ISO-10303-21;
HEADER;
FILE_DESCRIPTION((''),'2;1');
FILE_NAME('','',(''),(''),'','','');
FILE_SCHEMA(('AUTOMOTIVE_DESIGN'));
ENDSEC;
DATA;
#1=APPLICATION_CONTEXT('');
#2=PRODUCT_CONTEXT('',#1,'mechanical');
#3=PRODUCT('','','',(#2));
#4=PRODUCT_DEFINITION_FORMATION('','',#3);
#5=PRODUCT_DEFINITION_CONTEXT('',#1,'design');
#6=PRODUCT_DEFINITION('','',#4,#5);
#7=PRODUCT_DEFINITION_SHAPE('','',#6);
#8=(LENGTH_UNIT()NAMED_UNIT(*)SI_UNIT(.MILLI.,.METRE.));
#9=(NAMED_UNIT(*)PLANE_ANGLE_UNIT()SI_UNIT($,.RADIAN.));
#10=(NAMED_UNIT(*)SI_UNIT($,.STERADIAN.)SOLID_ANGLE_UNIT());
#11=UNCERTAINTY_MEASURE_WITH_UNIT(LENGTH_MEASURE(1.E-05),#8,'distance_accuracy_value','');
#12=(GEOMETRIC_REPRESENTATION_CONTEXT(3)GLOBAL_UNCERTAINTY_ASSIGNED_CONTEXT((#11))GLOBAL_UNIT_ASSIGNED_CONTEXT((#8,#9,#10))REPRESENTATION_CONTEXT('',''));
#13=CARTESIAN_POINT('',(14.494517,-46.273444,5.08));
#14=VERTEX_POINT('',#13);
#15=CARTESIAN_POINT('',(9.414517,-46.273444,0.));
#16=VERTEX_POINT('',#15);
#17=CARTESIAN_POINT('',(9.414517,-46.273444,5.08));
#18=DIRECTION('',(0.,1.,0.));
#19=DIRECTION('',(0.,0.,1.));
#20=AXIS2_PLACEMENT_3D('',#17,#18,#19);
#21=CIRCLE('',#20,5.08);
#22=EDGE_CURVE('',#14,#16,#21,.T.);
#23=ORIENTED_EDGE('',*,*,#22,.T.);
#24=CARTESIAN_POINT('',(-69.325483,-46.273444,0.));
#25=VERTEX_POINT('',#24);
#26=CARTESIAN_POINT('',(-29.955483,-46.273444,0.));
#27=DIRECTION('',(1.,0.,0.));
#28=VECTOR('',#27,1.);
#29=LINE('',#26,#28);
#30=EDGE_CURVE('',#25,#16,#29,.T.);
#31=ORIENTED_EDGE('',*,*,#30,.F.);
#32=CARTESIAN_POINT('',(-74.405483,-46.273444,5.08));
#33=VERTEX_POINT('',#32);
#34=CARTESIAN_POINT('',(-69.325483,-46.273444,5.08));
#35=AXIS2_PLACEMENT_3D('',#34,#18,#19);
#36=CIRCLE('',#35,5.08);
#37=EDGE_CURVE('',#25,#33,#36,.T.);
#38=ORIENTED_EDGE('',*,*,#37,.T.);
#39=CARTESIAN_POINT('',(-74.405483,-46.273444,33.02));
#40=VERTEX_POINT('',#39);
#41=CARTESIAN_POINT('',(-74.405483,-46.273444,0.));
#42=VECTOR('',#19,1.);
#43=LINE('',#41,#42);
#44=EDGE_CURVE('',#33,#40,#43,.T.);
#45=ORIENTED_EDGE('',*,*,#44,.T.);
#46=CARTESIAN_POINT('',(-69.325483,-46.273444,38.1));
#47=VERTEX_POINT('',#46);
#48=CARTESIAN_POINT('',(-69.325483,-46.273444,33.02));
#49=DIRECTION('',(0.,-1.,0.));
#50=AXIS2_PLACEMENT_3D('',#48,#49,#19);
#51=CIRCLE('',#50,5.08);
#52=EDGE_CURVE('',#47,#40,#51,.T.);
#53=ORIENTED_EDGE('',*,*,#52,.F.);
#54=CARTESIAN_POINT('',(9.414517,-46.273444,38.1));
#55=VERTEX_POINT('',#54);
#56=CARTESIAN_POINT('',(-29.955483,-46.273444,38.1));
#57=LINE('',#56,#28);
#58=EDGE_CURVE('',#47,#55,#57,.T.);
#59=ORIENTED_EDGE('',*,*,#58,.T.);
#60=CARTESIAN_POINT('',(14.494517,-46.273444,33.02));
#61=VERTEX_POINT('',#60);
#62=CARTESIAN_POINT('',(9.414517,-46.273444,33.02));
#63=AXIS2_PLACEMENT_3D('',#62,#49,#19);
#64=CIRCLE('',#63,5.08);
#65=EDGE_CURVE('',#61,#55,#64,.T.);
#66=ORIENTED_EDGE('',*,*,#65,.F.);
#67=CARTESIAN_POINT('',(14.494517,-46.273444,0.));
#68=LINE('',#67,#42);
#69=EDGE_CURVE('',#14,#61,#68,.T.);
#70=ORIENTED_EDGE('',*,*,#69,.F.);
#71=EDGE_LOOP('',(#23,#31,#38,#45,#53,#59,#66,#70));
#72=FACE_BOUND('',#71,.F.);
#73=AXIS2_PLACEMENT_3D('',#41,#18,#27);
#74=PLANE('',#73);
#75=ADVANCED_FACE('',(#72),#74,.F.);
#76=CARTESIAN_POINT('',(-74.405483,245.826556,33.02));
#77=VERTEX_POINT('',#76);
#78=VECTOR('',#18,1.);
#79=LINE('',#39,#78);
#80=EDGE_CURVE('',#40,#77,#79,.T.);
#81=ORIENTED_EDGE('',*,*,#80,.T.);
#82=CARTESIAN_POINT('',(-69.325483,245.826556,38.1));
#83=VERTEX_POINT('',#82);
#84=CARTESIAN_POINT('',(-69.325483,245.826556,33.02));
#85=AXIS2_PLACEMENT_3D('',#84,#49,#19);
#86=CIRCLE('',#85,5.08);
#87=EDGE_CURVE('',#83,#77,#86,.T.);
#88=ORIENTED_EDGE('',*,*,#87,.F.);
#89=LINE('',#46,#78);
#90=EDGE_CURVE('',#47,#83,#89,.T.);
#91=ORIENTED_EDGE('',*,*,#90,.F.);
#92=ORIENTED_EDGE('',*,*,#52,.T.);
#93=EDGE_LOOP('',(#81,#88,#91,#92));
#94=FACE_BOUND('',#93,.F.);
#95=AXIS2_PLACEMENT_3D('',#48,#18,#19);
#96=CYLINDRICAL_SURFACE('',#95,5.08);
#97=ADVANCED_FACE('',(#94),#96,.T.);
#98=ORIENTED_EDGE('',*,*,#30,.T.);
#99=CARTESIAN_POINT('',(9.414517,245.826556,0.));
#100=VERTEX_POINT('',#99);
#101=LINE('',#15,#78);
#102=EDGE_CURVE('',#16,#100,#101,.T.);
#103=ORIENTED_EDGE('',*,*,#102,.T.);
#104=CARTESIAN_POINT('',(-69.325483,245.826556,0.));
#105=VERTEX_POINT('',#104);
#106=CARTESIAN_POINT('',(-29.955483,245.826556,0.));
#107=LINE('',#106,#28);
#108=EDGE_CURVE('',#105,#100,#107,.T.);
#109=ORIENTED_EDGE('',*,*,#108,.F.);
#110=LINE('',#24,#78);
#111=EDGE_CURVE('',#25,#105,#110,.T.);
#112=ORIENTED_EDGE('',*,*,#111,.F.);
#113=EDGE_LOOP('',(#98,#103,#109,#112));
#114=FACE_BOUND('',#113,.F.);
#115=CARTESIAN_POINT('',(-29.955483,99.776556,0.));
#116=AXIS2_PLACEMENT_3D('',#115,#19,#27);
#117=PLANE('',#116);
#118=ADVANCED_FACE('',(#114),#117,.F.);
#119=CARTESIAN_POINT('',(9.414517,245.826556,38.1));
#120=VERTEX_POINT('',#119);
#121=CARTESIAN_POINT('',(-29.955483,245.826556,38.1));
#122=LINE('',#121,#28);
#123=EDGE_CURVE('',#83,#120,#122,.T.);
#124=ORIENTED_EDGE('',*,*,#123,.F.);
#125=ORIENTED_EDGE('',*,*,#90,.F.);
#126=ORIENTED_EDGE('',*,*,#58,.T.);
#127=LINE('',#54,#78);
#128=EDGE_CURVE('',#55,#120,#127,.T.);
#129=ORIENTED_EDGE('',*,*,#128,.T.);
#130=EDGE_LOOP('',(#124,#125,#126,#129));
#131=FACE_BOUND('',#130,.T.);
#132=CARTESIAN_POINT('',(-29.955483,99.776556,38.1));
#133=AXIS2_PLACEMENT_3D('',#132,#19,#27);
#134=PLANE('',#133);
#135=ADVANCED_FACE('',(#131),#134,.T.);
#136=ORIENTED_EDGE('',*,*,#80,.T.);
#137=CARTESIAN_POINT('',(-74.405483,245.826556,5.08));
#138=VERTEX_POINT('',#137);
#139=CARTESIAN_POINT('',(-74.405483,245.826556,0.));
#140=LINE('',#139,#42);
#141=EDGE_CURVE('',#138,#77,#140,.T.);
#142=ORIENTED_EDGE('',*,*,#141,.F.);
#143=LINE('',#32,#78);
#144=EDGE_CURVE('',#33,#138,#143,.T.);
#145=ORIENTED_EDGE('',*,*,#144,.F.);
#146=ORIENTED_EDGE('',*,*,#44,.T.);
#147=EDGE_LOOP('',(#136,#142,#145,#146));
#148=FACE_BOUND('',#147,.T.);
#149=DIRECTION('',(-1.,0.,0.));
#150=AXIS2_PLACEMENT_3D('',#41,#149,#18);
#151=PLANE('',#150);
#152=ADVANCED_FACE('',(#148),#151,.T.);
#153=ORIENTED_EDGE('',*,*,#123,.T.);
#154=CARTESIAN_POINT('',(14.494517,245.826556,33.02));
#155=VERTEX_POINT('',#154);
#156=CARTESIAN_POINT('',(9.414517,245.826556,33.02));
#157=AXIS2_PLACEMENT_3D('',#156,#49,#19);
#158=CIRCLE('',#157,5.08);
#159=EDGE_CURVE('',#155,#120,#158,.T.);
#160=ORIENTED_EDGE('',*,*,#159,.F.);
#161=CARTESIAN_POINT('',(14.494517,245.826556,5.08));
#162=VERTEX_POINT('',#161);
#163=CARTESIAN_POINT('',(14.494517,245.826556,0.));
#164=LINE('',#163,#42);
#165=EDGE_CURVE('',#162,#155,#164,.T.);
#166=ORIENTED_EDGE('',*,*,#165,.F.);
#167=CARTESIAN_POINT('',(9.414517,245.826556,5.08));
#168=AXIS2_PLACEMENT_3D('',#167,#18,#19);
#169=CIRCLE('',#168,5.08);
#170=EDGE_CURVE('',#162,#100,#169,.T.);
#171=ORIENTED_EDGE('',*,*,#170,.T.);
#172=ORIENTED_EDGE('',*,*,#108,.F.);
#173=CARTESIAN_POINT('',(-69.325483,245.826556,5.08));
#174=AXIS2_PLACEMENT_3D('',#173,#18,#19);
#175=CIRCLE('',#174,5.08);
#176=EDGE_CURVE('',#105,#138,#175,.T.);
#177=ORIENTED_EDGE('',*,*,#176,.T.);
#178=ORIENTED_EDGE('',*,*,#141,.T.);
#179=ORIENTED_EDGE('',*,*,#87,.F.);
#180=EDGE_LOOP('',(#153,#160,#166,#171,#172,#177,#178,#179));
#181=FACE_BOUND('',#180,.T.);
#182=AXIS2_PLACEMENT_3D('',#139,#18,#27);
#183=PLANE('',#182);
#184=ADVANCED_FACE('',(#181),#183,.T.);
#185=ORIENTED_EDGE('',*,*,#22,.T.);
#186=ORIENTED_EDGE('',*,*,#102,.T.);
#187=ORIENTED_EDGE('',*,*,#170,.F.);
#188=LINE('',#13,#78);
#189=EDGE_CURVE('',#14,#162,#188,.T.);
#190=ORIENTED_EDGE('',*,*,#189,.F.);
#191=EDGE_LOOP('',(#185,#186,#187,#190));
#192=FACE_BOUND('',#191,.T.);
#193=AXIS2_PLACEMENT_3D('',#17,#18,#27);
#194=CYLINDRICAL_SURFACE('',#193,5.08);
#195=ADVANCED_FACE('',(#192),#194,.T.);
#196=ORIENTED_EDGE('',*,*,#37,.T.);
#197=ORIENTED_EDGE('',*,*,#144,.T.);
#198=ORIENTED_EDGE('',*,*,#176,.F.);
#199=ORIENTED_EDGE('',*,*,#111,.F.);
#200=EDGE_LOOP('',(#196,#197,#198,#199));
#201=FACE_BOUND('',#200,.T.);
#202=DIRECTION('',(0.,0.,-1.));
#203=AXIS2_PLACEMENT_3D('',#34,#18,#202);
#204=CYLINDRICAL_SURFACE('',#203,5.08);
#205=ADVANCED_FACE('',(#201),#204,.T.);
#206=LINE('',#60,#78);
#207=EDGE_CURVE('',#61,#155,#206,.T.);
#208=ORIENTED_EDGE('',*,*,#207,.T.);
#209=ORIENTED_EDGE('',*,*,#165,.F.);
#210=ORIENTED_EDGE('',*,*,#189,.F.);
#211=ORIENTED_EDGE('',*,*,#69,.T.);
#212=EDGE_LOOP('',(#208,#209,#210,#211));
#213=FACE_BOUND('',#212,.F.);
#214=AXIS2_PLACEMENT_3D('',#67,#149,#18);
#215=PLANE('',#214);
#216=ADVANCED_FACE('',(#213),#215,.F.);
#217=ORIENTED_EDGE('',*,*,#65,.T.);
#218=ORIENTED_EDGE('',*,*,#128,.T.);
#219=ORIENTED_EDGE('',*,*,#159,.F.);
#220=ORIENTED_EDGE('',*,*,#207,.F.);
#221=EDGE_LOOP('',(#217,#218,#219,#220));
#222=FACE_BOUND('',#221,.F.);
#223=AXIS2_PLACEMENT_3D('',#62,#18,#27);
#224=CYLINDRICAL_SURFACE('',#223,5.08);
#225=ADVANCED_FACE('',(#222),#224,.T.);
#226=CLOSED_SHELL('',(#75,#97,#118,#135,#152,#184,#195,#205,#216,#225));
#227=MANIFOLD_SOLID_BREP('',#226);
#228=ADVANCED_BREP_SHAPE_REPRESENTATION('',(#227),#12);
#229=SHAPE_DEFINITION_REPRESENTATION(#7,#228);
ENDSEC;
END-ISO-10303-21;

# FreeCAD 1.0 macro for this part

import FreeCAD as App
import Part
import Sketcher
Q = App.Units.Quantity


def edges_at(feature, points):
    """Names of the edges that pass closest to the given points."""
    edges = feature.Shape.Edges
    near = lambda p: min(range(len(edges)), key=lambda i: edges[i].distToShape(Part.Vertex(*p))[0])
    return sorted({f"Edge{near(p) + 1}" for p in points})


def add_polygon(sketch, points):
    """Adds a closed chain of lines whose ends are joined by coincident constraints."""
    first, n = sketch.GeometryCount, len(points)
    for a, b in zip(points, points[1:] + points[:1]):
        sketch.addGeometry(Part.LineSegment(App.Vector(*a, 0), App.Vector(*b, 0)), False)
    for i in range(n):
        sketch.addConstraint(Sketcher.Constraint("Coincident", first + i, 2, first + (i + 1) % n, 1))

doc = App.newDocument("Part")
body = doc.addObject("PartDesign::Body", "Body")

sketch1 = body.newObject("Sketcher::SketchObject", "Sketch")
sketch1.AttachmentSupport = (doc.getObject("XY_Plane"), [""])
sketch1.MapMode = "FlatFace"
add_polygon(sketch1, [(-74, 246), (-74, -46), (14, -46), (14, 246)])
sketch1.addConstraint([
    Sketcher.Constraint("Vertical", 0),
    Sketcher.Constraint("Horizontal", 1),
    Sketcher.Constraint("Vertical", 2),
    Sketcher.Constraint("Horizontal", 3),
    Sketcher.Constraint("DistanceX", 1, 1, 1, 2, Q("3.5 in")),
    Sketcher.Constraint("DistanceY", 0, 2, 0, 1, Q("11.5 in")),
    Sketcher.Constraint("DistanceX", 0, 2, -1, 1, 74.405483),
    Sketcher.Constraint("DistanceY", 0, 2, -1, 1, 46.273444),
])
pad1 = body.newObject("PartDesign::Pad", "Pad")
pad1.Profile = sketch1
pad1.Length = Q("1.5 in")
doc.recompute()

fillet = body.newObject("PartDesign::Fillet", "Fillet")
fillet.Base = (pad1, edges_at(pad1, [(14.495, 99.777, 38.1)]))
fillet.Radius = Q("0.2 in")
doc.recompute()

fillet2 = body.newObject("PartDesign::Fillet", "Fillet001")
fillet2.Base = (fillet, edges_at(fillet, [(-74.405, 99.777, 38.1), (14.495, 99.777, 0), (-74.405, 99.777, 0)]))
fillet2.Radius = Q("0.2 in")

doc.recompute()
